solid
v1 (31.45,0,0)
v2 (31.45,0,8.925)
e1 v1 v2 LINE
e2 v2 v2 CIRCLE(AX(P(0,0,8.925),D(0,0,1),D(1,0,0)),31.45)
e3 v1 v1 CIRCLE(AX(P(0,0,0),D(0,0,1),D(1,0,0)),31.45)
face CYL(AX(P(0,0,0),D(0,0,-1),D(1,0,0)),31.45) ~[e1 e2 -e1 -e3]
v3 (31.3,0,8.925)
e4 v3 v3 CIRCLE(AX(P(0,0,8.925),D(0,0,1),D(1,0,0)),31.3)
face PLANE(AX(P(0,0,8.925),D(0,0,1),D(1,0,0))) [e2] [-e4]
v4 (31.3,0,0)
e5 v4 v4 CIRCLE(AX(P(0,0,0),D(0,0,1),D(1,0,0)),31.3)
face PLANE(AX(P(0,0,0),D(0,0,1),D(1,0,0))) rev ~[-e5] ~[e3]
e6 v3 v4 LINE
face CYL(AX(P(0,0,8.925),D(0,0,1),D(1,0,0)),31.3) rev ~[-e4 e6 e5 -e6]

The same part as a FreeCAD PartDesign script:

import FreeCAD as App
import Part
import Sketcher
from FreeCAD import Vector
Q = App.Units.Quantity

doc = App.newDocument("Part")
body = doc.addObject("PartDesign::Body", "Body")

# Sketch on XY plane
sketch1 = body.newObject("Sketcher::SketchObject", "Sketch")
sketch1.AttachmentSupport = (doc.getObject("XY_Plane"), [""])
sketch1.MapMode = "FlatFace"
sketch1.addGeometry(Part.Circle(Vector(0, 0, 0), Vector(0, 0, 1), 31), False)
sketch1.addConstraint(Sketcher.Constraint("Coincident", 0, 3, -1, 1))
sketch1.addConstraint(Sketcher.Constraint("Diameter", 0, Q("62.9 mm")))
pad1 = body.newObject("PartDesign::Pad", "Pad")
pad1.Profile = sketch1
pad1.Length = 8.925

# Sketch on XY plane
sketch2 = body.newObject("Sketcher::SketchObject", "Sketch001")
sketch2.AttachmentSupport = (doc.getObject("XY_Plane"), [""])
sketch2.MapMode = "FlatFace"
sketch2.AttachmentOffset = App.Placement(Vector(0, 0, 8.925), App.Rotation())
sketch2.addGeometry(Part.Circle(Vector(0, 0, 0), Vector(0, 0, 1), 31), False)
sketch2.addConstraint(Sketcher.Constraint("Coincident", 0, 3, -1, 1))
sketch2.addConstraint(Sketcher.Constraint("Diameter", 0, Q("62.6 mm")))
pocket1 = body.newObject("PartDesign::Pocket", "Pocket")
pocket1.Profile = sketch2
pocket1.Type = "ThroughAll"

doc.recompute()
